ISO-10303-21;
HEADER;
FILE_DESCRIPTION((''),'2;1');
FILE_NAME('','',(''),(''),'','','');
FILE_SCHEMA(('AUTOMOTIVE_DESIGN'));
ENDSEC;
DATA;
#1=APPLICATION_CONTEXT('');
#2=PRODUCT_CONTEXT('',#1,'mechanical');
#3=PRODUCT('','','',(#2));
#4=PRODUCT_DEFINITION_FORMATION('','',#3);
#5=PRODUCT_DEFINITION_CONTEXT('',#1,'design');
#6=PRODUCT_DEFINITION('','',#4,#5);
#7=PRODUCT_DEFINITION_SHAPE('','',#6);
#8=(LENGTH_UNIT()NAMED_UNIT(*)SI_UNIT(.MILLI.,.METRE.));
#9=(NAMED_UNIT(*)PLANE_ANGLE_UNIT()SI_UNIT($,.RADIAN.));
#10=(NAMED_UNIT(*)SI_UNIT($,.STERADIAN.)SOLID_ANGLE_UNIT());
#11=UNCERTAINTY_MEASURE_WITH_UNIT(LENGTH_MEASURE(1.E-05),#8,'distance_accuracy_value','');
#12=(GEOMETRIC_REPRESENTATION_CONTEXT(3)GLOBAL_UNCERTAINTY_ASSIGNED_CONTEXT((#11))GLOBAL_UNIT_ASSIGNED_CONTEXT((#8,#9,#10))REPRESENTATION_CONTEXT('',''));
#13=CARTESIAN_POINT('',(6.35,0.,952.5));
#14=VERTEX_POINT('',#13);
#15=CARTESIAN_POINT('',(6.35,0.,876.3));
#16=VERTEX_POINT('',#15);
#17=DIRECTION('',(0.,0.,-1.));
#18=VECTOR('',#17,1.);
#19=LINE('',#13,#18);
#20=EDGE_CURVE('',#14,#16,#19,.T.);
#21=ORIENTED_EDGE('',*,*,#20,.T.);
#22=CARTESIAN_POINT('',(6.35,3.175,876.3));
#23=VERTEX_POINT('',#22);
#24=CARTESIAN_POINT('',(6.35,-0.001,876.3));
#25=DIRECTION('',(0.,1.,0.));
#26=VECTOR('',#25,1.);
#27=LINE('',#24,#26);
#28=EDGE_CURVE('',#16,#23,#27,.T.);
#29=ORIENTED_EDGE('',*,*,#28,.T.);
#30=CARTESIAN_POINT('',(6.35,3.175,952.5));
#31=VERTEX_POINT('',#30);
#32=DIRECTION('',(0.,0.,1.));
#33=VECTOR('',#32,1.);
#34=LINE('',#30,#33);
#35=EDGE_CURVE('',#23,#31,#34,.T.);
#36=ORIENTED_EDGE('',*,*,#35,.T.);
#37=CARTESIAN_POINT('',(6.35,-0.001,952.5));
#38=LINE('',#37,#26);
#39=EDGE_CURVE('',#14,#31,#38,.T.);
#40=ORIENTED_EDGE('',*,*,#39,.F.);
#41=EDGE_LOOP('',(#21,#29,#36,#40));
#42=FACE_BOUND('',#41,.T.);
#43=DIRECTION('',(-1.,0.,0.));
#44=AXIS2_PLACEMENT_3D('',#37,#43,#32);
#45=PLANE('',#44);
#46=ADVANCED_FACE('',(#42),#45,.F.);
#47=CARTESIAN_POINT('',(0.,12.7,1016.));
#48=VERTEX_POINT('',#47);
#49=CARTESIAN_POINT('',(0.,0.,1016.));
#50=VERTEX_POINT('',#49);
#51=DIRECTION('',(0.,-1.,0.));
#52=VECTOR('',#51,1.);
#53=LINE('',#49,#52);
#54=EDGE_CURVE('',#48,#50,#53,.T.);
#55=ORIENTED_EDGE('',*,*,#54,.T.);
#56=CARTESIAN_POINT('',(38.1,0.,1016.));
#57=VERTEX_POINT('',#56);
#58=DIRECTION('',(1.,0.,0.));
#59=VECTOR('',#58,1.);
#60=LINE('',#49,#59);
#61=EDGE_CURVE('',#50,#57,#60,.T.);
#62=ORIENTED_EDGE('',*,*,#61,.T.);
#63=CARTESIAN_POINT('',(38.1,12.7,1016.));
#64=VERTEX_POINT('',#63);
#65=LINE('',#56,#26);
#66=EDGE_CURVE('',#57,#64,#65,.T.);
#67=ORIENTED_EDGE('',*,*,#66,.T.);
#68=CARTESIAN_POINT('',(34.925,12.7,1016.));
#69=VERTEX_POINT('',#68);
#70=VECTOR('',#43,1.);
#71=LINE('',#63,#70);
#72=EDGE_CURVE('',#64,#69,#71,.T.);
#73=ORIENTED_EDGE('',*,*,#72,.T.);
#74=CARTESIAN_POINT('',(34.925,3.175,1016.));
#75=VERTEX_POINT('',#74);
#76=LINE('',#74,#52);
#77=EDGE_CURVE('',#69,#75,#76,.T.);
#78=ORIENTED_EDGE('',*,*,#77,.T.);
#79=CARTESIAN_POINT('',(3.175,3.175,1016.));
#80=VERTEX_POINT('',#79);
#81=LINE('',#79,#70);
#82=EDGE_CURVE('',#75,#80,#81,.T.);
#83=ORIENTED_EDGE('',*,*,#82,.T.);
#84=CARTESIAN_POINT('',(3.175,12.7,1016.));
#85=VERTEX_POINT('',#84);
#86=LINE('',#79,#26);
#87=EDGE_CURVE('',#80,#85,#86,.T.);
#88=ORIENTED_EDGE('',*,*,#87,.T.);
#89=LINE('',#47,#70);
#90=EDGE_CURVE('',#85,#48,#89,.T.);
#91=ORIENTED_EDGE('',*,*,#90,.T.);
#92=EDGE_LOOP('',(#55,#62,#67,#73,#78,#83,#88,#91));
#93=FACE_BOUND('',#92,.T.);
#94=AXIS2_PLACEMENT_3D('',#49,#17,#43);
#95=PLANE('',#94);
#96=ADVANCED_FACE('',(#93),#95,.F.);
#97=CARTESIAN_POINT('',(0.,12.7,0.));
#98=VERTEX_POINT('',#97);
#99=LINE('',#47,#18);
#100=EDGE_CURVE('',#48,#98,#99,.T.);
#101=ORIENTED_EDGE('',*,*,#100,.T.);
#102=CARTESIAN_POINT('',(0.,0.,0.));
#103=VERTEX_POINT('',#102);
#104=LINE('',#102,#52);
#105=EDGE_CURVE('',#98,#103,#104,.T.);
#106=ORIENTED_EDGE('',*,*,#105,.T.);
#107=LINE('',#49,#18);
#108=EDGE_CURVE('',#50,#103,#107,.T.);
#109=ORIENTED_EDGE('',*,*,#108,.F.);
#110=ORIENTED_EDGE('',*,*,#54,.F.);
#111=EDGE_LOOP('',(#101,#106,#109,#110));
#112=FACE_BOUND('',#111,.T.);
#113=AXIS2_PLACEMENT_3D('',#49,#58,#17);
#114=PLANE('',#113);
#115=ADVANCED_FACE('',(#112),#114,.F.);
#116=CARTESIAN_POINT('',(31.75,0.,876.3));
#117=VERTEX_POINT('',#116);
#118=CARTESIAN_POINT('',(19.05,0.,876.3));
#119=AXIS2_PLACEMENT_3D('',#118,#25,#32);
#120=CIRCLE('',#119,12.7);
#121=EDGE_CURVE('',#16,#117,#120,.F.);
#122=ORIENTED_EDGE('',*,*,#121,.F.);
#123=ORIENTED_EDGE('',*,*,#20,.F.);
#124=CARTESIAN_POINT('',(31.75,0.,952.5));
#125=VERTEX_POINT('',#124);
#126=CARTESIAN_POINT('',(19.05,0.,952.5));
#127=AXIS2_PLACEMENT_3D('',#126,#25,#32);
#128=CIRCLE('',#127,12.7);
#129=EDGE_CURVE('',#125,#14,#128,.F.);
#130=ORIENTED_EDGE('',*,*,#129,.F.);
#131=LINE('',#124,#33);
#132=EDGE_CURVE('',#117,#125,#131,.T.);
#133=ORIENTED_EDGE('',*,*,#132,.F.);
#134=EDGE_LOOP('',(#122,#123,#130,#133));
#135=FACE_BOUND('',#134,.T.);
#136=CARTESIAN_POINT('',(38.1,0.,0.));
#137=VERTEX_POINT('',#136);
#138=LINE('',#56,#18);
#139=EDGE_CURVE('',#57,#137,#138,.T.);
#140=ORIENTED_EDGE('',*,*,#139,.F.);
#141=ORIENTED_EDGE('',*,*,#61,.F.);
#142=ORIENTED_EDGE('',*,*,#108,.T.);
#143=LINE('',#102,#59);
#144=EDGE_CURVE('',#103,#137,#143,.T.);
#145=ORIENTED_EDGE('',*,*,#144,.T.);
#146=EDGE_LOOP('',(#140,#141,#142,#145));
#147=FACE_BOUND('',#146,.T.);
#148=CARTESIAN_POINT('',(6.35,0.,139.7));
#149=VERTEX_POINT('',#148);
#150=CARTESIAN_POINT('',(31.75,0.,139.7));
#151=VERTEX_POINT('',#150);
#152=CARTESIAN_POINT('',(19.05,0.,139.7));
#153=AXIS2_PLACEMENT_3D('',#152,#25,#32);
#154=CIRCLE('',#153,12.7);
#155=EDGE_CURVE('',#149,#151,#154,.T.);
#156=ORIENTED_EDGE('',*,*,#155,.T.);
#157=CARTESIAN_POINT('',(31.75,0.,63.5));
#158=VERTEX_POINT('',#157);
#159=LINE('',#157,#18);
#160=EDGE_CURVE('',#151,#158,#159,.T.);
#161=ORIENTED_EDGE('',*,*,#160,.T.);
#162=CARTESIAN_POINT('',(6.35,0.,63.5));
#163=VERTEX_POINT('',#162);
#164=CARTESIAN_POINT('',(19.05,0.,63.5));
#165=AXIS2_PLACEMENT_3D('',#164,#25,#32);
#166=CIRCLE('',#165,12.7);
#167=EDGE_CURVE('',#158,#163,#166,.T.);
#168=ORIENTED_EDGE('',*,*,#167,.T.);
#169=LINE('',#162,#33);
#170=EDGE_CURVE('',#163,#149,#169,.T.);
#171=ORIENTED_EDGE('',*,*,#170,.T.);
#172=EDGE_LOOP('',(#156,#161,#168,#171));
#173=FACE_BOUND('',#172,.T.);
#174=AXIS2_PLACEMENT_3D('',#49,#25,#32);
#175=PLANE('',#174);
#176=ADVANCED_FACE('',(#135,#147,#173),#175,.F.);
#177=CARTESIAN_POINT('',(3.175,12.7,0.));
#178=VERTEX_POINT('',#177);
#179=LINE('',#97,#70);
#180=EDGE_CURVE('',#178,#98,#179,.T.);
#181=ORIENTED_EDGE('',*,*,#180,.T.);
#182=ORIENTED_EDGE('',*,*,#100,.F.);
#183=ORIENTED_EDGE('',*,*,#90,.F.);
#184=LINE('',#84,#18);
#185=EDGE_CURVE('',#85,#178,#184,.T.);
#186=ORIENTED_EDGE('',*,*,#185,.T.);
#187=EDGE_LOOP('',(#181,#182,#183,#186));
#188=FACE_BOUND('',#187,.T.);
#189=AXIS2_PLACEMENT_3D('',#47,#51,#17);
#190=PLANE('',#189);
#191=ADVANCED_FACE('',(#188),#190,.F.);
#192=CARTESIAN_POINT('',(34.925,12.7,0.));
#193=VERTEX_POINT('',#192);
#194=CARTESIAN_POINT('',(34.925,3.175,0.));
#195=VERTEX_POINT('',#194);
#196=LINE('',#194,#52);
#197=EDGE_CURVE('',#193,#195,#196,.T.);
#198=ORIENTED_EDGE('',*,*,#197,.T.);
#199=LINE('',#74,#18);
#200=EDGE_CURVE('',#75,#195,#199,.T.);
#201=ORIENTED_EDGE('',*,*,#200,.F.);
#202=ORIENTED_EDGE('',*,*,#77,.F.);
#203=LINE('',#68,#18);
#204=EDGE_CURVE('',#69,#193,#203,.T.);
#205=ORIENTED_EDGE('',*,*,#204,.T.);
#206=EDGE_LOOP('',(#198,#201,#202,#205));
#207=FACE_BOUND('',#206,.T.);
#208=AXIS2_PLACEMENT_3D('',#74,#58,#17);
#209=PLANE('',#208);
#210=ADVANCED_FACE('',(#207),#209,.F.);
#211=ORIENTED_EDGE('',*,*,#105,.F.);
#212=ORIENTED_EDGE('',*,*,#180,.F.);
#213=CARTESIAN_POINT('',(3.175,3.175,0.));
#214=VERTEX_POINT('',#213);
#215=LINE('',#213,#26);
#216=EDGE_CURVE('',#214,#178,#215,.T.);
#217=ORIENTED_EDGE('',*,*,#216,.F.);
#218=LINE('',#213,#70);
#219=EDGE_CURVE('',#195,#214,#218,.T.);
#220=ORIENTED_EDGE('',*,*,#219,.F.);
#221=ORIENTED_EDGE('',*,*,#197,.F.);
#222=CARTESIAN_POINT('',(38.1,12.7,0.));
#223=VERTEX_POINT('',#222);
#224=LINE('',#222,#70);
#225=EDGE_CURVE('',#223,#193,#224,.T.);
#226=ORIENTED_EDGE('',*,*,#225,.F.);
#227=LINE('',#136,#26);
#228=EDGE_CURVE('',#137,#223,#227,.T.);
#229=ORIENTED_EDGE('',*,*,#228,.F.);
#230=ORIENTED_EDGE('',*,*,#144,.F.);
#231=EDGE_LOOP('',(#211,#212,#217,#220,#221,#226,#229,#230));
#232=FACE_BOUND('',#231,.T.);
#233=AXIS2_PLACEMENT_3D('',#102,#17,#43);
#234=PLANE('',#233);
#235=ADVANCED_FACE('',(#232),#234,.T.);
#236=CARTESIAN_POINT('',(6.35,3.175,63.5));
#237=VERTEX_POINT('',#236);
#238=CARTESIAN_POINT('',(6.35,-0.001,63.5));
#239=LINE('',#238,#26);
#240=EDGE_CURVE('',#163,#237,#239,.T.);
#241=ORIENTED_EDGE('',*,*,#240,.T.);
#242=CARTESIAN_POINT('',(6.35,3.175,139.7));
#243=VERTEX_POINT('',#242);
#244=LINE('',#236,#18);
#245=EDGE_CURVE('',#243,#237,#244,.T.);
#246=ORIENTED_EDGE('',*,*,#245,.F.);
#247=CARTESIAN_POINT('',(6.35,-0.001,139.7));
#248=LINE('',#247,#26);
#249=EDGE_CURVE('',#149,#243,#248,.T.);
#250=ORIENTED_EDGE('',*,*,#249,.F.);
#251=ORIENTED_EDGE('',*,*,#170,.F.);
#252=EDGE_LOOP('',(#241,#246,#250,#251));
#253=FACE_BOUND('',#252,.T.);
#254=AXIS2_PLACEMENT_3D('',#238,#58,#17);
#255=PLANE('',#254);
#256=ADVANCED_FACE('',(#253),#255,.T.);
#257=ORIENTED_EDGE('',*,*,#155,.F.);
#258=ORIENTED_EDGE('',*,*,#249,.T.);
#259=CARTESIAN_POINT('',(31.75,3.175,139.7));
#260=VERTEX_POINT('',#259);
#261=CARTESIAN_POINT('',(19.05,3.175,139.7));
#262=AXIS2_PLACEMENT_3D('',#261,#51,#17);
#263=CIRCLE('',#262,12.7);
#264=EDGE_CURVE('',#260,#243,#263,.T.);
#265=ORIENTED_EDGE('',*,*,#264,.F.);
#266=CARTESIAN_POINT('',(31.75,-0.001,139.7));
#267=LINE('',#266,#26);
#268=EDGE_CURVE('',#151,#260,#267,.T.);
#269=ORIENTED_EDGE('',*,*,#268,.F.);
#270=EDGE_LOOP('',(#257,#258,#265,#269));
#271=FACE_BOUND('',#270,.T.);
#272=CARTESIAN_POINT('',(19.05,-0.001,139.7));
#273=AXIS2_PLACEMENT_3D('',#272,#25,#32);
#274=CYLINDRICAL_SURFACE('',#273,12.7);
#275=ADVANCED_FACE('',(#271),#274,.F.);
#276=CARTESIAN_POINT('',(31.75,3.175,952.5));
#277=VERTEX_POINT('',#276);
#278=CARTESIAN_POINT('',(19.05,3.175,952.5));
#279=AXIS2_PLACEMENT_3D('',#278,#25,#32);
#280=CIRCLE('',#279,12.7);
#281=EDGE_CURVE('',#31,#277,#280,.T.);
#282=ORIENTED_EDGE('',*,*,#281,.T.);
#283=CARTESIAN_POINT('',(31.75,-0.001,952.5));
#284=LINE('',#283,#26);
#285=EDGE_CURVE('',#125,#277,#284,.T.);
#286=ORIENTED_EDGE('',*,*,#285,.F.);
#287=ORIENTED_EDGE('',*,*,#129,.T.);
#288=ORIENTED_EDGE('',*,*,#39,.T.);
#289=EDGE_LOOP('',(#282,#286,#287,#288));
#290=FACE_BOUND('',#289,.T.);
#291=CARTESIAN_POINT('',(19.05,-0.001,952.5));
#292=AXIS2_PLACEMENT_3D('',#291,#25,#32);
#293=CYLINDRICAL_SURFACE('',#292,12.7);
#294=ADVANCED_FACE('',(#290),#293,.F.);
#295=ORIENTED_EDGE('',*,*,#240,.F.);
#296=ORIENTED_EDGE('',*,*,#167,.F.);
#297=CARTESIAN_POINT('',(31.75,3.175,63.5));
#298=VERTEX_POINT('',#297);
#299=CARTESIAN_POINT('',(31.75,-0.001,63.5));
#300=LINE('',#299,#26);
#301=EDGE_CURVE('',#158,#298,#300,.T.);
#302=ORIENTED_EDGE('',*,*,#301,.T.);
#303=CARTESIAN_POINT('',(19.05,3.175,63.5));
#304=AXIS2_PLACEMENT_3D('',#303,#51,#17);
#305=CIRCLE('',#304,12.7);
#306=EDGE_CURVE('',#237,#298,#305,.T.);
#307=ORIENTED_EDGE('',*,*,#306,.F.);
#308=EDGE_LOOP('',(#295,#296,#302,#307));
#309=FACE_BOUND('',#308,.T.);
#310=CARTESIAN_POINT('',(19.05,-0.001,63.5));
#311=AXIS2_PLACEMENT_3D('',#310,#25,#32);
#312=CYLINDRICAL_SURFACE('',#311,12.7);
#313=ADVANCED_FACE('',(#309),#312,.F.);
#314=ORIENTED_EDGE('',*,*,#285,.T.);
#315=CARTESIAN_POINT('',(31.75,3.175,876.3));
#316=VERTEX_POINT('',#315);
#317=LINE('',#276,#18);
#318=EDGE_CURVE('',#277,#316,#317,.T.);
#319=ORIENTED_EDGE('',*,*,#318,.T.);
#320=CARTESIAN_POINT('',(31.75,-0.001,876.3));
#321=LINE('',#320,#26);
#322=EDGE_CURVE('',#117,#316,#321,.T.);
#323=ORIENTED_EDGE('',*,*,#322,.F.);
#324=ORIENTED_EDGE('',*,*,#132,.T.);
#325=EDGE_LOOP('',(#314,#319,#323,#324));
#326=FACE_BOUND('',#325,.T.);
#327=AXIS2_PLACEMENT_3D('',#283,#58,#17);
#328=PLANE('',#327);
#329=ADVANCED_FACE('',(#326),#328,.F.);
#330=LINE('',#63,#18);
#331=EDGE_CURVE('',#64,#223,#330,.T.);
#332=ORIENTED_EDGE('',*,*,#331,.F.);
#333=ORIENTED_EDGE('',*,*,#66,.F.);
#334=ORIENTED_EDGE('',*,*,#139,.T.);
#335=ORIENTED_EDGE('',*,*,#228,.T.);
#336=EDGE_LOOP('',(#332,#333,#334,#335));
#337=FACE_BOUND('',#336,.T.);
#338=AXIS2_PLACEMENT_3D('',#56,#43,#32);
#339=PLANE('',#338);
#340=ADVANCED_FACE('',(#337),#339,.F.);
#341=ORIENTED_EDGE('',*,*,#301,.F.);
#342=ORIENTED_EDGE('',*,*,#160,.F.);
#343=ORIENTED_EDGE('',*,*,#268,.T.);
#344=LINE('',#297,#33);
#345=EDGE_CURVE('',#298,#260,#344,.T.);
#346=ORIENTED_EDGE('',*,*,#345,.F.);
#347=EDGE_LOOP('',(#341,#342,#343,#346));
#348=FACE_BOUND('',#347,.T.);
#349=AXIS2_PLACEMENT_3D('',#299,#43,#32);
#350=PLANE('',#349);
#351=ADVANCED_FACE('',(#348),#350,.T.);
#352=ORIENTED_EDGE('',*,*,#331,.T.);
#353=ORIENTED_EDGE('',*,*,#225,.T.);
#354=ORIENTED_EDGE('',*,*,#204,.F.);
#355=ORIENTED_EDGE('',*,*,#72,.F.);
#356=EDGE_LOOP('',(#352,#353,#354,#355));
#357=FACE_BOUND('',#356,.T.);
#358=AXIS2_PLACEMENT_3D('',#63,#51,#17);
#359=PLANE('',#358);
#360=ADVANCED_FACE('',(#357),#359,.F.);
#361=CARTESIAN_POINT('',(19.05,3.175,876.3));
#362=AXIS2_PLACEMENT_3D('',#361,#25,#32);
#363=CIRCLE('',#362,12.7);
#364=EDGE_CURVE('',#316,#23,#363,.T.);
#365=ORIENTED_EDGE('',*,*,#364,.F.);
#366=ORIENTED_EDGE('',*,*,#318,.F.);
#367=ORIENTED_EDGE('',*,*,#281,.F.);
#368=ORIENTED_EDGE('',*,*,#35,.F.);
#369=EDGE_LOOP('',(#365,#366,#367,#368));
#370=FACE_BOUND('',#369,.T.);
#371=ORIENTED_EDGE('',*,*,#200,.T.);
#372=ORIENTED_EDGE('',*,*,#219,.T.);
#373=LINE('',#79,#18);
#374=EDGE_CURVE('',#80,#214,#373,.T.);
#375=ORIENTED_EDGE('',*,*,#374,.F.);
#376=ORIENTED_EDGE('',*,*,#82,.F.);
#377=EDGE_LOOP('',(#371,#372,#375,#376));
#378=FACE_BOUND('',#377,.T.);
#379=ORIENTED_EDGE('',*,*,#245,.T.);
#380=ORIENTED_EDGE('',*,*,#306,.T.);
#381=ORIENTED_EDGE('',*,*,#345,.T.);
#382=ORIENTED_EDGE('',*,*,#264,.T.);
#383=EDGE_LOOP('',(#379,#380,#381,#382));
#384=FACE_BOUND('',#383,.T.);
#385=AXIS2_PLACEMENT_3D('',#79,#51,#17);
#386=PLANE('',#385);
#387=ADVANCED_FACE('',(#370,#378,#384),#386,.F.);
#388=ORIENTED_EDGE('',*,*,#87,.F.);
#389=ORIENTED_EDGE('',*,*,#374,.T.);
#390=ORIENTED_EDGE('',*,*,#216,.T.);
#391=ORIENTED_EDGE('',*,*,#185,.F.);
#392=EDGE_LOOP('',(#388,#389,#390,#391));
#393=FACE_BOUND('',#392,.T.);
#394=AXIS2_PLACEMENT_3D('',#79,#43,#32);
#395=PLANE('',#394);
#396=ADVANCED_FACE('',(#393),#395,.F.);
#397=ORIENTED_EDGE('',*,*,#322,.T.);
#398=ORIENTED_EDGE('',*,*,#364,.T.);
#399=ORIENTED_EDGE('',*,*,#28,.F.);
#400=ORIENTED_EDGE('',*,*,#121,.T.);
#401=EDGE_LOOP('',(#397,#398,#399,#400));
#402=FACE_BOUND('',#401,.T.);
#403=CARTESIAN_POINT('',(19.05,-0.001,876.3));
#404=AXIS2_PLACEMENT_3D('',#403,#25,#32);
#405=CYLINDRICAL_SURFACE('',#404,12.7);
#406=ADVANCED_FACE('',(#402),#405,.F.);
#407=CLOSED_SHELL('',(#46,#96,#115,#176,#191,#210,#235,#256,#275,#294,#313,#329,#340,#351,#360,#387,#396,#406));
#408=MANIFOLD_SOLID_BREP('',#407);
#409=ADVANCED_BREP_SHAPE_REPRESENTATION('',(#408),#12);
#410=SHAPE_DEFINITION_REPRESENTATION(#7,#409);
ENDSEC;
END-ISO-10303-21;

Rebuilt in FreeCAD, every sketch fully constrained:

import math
import FreeCAD as App
import Part
import Sketcher
Q = App.Units.Quantity


def add_polygon(sketch, points):
    """Adds a closed chain of lines whose ends are joined by coincident constraints."""
    first, n = sketch.GeometryCount, len(points)
    for a, b in zip(points, points[1:] + points[:1]):
        sketch.addGeometry(Part.LineSegment(App.Vector(*a, 0), App.Vector(*b, 0)), False)
    for i in range(n):
        sketch.addConstraint(Sketcher.Constraint("Coincident", first + i, 2, first + (i + 1) % n, 1))

doc = App.newDocument("Part")
body = doc.addObject("PartDesign::Body", "Body")

sketch1 = body.newObject("Sketcher::SketchObject", "Sketch")
sketch1.AttachmentSupport = (doc.getObject("XY_Plane"), [""])
sketch1.MapMode = "FlatFace"
add_polygon(sketch1, [(3.2, 3.2), (3.2, 12.7), (0, 12.7), (0, 0), (38.1, 0), (38.1, 12.7), (34.9, 12.7), (34.9, 3.2)])
sketch1.addConstraint([
    Sketcher.Constraint("Vertical", 0),
    Sketcher.Constraint("Horizontal", 1),
    Sketcher.Constraint("Vertical", 2),
    Sketcher.Constraint("Horizontal", 3),
    Sketcher.Constraint("Vertical", 4),
    Sketcher.Constraint("Horizontal", 5),
    Sketcher.Constraint("Vertical", 6),
    Sketcher.Constraint("Horizontal", 7),
    Sketcher.Constraint("Coincident", 2, 2, -1, 1),
    Sketcher.Constraint("Horizontal", 1, 2, 4, 2),
    Sketcher.Constraint("Equal", 1, 5),
    Sketcher.Constraint("DistanceX", 3, 1, 3, 2, Q("1.5 in")),
    Sketcher.Constraint("DistanceY", 2, 2, 2, 1, Q("0.5 in")),
    Sketcher.Constraint("DistanceX", 7, 2, 7, 1, Q("1.25 in")),
    Sketcher.Constraint("DistanceY", 0, 1, 0, 2, Q("0.375 in")),
])
pad1 = body.newObject("PartDesign::Pad", "Pad")
pad1.Profile = sketch1
pad1.Length = Q("40 in")

sketch2 = body.newObject("Sketcher::SketchObject", "Sketch001")
sketch2.AttachmentSupport = (doc.getObject("XZ_Plane"), [""])
sketch2.MapMode = "FlatFace"
sketch2.AttachmentOffset = App.Placement(App.Vector(0, 0, -0.125 * 25.4), App.Rotation())
sketch2.addGeometry([
    Part.LineSegment(App.Vector(6, 876, 0), App.Vector(6, 952, 0)),
    Part.ArcOfCircle(Part.Circle(App.Vector(19, 952, 0), App.Vector(0, 0, 1), 13), math.radians(0), math.radians(180)),
    Part.LineSegment(App.Vector(32, 952, 0), App.Vector(32, 876, 0)),
    Part.ArcOfCircle(Part.Circle(App.Vector(19, 876, 0), App.Vector(0, 0, 1), 13), math.radians(180), math.radians(360)),
], False)
sketch2.addConstraint([
    Sketcher.Constraint("Tangent", 0, 2, 1, 2),
    Sketcher.Constraint("Tangent", 1, 1, 2, 1),
    Sketcher.Constraint("Tangent", 2, 2, 3, 2),
    Sketcher.Constraint("Tangent", 3, 1, 0, 1),
    Sketcher.Constraint("Vertical", 0),
    Sketcher.Constraint("Vertical", 2),
    Sketcher.Constraint("Radius", 1, Q("0.5 in")),
    Sketcher.Constraint("DistanceY", 0, 1, 0, 2, Q("3 in")),
    Sketcher.Constraint("DistanceY", -1, 1, 1, 3, Q("37.5 in")),
    Sketcher.Constraint("DistanceX", -1, 1, 1, 3, Q("0.75 in")),
])
pocket1 = body.newObject("PartDesign::Pocket", "Pocket")
pocket1.Profile = sketch2
pocket1.Length = Q("0.125 in")
pocket1.Reversed = True
doc.recompute()

datumplane = body.newObject("PartDesign::Plane", "DatumPlane")
datumplane.AttachmentSupport = (doc.getObject("XY_Plane"), [""])
datumplane.MapMode = "FlatFace"
datumplane.AttachmentOffset = App.Placement(App.Vector(0, 0, 20 * 25.4), App.Rotation())
mirrored = body.newObject("PartDesign::Mirrored", "Mirrored")
mirrored.Originals = [pocket1]
mirrored.MirrorPlane = (datumplane, [""])
body.Tip = mirrored

doc.recompute()
